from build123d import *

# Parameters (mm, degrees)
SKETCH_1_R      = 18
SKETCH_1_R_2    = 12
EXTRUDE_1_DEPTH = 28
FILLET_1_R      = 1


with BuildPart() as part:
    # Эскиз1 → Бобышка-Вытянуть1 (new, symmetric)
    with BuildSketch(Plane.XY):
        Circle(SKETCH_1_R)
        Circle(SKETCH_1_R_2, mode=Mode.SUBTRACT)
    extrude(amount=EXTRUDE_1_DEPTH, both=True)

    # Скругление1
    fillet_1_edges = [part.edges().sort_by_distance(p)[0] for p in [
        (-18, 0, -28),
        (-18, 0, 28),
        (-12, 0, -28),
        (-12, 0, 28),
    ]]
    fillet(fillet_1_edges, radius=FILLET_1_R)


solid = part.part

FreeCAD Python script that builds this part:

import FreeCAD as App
import Part
import Sketcher
from FreeCAD import Vector


def edges_at(feature, points):
    """Names of the edges that pass closest to the given points."""
    edges = feature.Shape.Edges
    near = lambda p: min(range(len(edges)), key=lambda i: edges[i].distToShape(Part.Vertex(*p))[0])
    return sorted({f"Edge{near(p) + 1}" for p in points})

doc = App.newDocument("Part")
body = doc.addObject("PartDesign::Body", "Body")

# Sketch on XY plane
sketch1 = body.newObject("Sketcher::SketchObject", "Sketch")
sketch1.AttachmentSupport = (doc.getObject("XY_Plane"), [""])
sketch1.MapMode = "FlatFace"
sketch1.addGeometry([
    Part.Circle(Vector(0, 0, 0), Vector(0, 0, 1), 18),
    Part.Circle(Vector(0, 0, 0), Vector(0, 0, 1), 12),
], False)
sketch1.addConstraint([
    Sketcher.Constraint("Coincident", 0, 3, -1, 1),
    Sketcher.Constraint("Coincident", 1, 3, -1, 1),
    Sketcher.Constraint("Diameter", 0, 36.0),
    Sketcher.Constraint("Diameter", 1, 24.0),
])
pad1 = body.newObject("PartDesign::Pad", "Pad")
pad1.Profile = sketch1
pad1.Length = 56
pad1.Midplane = True
doc.recompute()

fillet = body.newObject("PartDesign::Fillet", "Fillet")
fillet.Base = (pad1, edges_at(pad1, [
    (-18, 0, -28),
    (-18, 0, 28),
    (-12, 0, -28),
    (-12, 0, 28),
]))
fillet.Radius = 1

doc.recompute()
